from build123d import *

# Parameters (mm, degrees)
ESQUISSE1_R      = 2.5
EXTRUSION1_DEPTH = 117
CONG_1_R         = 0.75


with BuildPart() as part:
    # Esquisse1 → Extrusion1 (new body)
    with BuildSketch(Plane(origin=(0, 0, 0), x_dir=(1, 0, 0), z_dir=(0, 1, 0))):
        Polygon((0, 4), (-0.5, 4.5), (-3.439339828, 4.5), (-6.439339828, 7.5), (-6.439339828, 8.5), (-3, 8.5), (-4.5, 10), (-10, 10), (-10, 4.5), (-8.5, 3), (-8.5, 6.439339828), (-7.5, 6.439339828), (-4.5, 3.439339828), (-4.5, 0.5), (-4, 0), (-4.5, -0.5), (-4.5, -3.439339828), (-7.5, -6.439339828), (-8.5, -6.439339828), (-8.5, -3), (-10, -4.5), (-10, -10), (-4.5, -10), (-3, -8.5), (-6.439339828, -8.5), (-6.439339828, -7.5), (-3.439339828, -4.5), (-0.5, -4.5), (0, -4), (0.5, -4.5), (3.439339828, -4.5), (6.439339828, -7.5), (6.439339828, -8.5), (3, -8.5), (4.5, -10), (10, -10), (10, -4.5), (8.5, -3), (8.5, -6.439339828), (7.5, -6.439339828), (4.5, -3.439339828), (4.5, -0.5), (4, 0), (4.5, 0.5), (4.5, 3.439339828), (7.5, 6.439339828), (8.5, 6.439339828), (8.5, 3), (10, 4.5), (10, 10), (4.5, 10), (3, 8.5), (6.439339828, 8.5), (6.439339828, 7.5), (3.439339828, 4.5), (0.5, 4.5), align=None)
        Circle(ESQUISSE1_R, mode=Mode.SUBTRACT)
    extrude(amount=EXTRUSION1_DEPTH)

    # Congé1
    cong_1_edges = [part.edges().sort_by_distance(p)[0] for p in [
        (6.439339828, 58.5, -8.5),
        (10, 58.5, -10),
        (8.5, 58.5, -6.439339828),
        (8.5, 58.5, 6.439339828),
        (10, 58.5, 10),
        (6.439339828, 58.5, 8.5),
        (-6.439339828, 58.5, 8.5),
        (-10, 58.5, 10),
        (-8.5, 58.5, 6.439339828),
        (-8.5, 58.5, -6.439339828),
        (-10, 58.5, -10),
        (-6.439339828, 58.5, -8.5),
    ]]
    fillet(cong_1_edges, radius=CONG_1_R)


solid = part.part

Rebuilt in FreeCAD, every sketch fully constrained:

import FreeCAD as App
import Part
import Sketcher


def edges_at(feature, points):
    """Names of the edges that pass closest to the given points."""
    edges = feature.Shape.Edges
    near = lambda p: min(range(len(edges)), key=lambda i: edges[i].distToShape(Part.Vertex(*p))[0])
    return sorted({f"Edge{near(p) + 1}" for p in points})

doc = App.newDocument("Part")
body = doc.addObject("PartDesign::Body", "Body")

# Sketch on XZ plane
sketch1 = body.newObject("Sketcher::SketchObject", "Sketch")
sketch1.AttachmentSupport = (doc.getObject("XZ_Plane"), [""])
sketch1.MapMode = "FlatFace"
sketch1.addGeometry([
    Part.LineSegment(App.Vector(0, -4, 0), App.Vector(-0.5, -4.5, 0)),  # 0
    Part.LineSegment(App.Vector(-0.5, -4.5, 0), App.Vector(-3.4, -4.5, 0)),  # 1
    Part.LineSegment(App.Vector(-3.4, -4.5, 0), App.Vector(-6.4, -7.5, 0)),  # 2
    Part.LineSegment(App.Vector(-6.4, -7.5, 0), App.Vector(-6.4, -8.5, 0)),  # 3
    Part.LineSegment(App.Vector(-6.4, -8.5, 0), App.Vector(-3, -8.5, 0)),  # 4
    Part.LineSegment(App.Vector(-3, -8.5, 0), App.Vector(-4.5, -10, 0)),  # 5
    Part.LineSegment(App.Vector(-4.5, -10, 0), App.Vector(-10, -10, 0)),  # 6
    Part.LineSegment(App.Vector(-10, -10, 0), App.Vector(-10, -4.5, 0)),  # 7
    Part.LineSegment(App.Vector(-10, -4.5, 0), App.Vector(-8.5, -3, 0)),  # 8
    Part.LineSegment(App.Vector(-8.5, -3, 0), App.Vector(-8.5, -6.4, 0)),  # 9
    Part.LineSegment(App.Vector(-8.5, -6.4, 0), App.Vector(-7.5, -6.4, 0)),  # 10
    Part.LineSegment(App.Vector(-7.5, -6.4, 0), App.Vector(-4.5, -3.4, 0)),  # 11
    Part.LineSegment(App.Vector(-4.5, -3.4, 0), App.Vector(-4.5, -0.5, 0)),  # 12
    Part.LineSegment(App.Vector(-4.5, -0.5, 0), App.Vector(-4, 0, 0)),  # 13
    Part.LineSegment(App.Vector(-4, 0, 0), App.Vector(-4.5, 0.5, 0)),  # 14
    Part.LineSegment(App.Vector(-4.5, 0.5, 0), App.Vector(-4.5, 3.4, 0)),  # 15
    Part.LineSegment(App.Vector(-4.5, 3.4, 0), App.Vector(-7.5, 6.4, 0)),  # 16
    Part.LineSegment(App.Vector(-7.5, 6.4, 0), App.Vector(-8.5, 6.4, 0)),  # 17
    Part.LineSegment(App.Vector(-8.5, 6.4, 0), App.Vector(-8.5, 3, 0)),  # 18
    Part.LineSegment(App.Vector(-8.5, 3, 0), App.Vector(-10, 4.5, 0)),  # 19
    Part.LineSegment(App.Vector(-10, 4.5, 0), App.Vector(-10, 10, 0)),  # 20
    Part.LineSegment(App.Vector(-10, 10, 0), App.Vector(-4.5, 10, 0)),  # 21
    Part.LineSegment(App.Vector(-4.5, 10, 0), App.Vector(-3, 8.5, 0)),  # 22
    Part.LineSegment(App.Vector(-3, 8.5, 0), App.Vector(-6.4, 8.5, 0)),  # 23
    Part.LineSegment(App.Vector(-6.4, 8.5, 0), App.Vector(-6.4, 7.5, 0)),  # 24
    Part.LineSegment(App.Vector(-6.4, 7.5, 0), App.Vector(-3.4, 4.5, 0)),  # 25
    Part.LineSegment(App.Vector(-3.4, 4.5, 0), App.Vector(-0.5, 4.5, 0)),  # 26
    Part.LineSegment(App.Vector(-0.5, 4.5, 0), App.Vector(0, 4, 0)),  # 27
    Part.LineSegment(App.Vector(0, 4, 0), App.Vector(0.5, 4.5, 0)),  # 28
    Part.LineSegment(App.Vector(0.5, 4.5, 0), App.Vector(3.4, 4.5, 0)),  # 29
    Part.LineSegment(App.Vector(3.4, 4.5, 0), App.Vector(6.4, 7.5, 0)),  # 30
    Part.LineSegment(App.Vector(6.4, 7.5, 0), App.Vector(6.4, 8.5, 0)),  # 31
    Part.LineSegment(App.Vector(6.4, 8.5, 0), App.Vector(3, 8.5, 0)),  # 32
    Part.LineSegment(App.Vector(3, 8.5, 0), App.Vector(4.5, 10, 0)),  # 33
    Part.LineSegment(App.Vector(4.5, 10, 0), App.Vector(10, 10, 0)),  # 34
    Part.LineSegment(App.Vector(10, 10, 0), App.Vector(10, 4.5, 0)),  # 35
    Part.LineSegment(App.Vector(10, 4.5, 0), App.Vector(8.5, 3, 0)),  # 36
    Part.LineSegment(App.Vector(8.5, 3, 0), App.Vector(8.5, 6.4, 0)),  # 37
    Part.LineSegment(App.Vector(8.5, 6.4, 0), App.Vector(7.5, 6.4, 0)),  # 38
    Part.LineSegment(App.Vector(7.5, 6.4, 0), App.Vector(4.5, 3.4, 0)),  # 39
    Part.LineSegment(App.Vector(4.5, 3.4, 0), App.Vector(4.5, 0.5, 0)),  # 40
    Part.LineSegment(App.Vector(4.5, 0.5, 0), App.Vector(4, 0, 0)),  # 41
    Part.LineSegment(App.Vector(4, 0, 0), App.Vector(4.5, -0.5, 0)),  # 42
    Part.LineSegment(App.Vector(4.5, -0.5, 0), App.Vector(4.5, -3.4, 0)),  # 43
    Part.LineSegment(App.Vector(4.5, -3.4, 0), App.Vector(7.5, -6.4, 0)),  # 44
    Part.LineSegment(App.Vector(7.5, -6.4, 0), App.Vector(8.5, -6.4, 0)),  # 45
    Part.LineSegment(App.Vector(8.5, -6.4, 0), App.Vector(8.5, -3, 0)),  # 46
    Part.LineSegment(App.Vector(8.5, -3, 0), App.Vector(10, -4.5, 0)),  # 47
    Part.LineSegment(App.Vector(10, -4.5, 0), App.Vector(10, -10, 0)),  # 48
    Part.LineSegment(App.Vector(10, -10, 0), App.Vector(4.5, -10, 0)),  # 49
    Part.LineSegment(App.Vector(4.5, -10, 0), App.Vector(3, -8.5, 0)),  # 50
    Part.LineSegment(App.Vector(3, -8.5, 0), App.Vector(6.4, -8.5, 0)),  # 51
    Part.LineSegment(App.Vector(6.4, -8.5, 0), App.Vector(6.4, -7.5, 0)),  # 52
    Part.LineSegment(App.Vector(6.4, -7.5, 0), App.Vector(3.4, -4.5, 0)),  # 53
    Part.LineSegment(App.Vector(3.4, -4.5, 0), App.Vector(0.5, -4.5, 0)),  # 54
    Part.LineSegment(App.Vector(0.5, -4.5, 0), App.Vector(0, -4, 0)),  # 55
    Part.Circle(App.Vector(0, 0, 0), App.Vector(0, 0, 1), 2.5),  # 56
], False)
sketch1.addConstraint([
    Sketcher.Constraint("Coincident", 0, 2, 1, 1),
    Sketcher.Constraint("Coincident", 1, 2, 2, 1),
    Sketcher.Constraint("Coincident", 2, 2, 3, 1),
    Sketcher.Constraint("Coincident", 3, 2, 4, 1),
    Sketcher.Constraint("Coincident", 4, 2, 5, 1),
    Sketcher.Constraint("Coincident", 5, 2, 6, 1),
    Sketcher.Constraint("Coincident", 6, 2, 7, 1),
    Sketcher.Constraint("Coincident", 7, 2, 8, 1),
    Sketcher.Constraint("Coincident", 8, 2, 9, 1),
    Sketcher.Constraint("Coincident", 9, 2, 10, 1),
    Sketcher.Constraint("Coincident", 10, 2, 11, 1),
    Sketcher.Constraint("Coincident", 11, 2, 12, 1),
    Sketcher.Constraint("Coincident", 12, 2, 13, 1),
    Sketcher.Constraint("Coincident", 13, 2, 14, 1),
    Sketcher.Constraint("Coincident", 14, 2, 15, 1),
    Sketcher.Constraint("Coincident", 15, 2, 16, 1),
    Sketcher.Constraint("Coincident", 16, 2, 17, 1),
    Sketcher.Constraint("Coincident", 17, 2, 18, 1),
    Sketcher.Constraint("Coincident", 18, 2, 19, 1),
    Sketcher.Constraint("Coincident", 19, 2, 20, 1),
    Sketcher.Constraint("Coincident", 20, 2, 21, 1),
    Sketcher.Constraint("Coincident", 21, 2, 22, 1),
    Sketcher.Constraint("Coincident", 22, 2, 23, 1),
    Sketcher.Constraint("Coincident", 23, 2, 24, 1),
    Sketcher.Constraint("Coincident", 24, 2, 25, 1),
    Sketcher.Constraint("Coincident", 25, 2, 26, 1),
    Sketcher.Constraint("Coincident", 26, 2, 27, 1),
    Sketcher.Constraint("Coincident", 27, 2, 28, 1),
    Sketcher.Constraint("Coincident", 28, 2, 29, 1),
    Sketcher.Constraint("Coincident", 29, 2, 30, 1),
    Sketcher.Constraint("Coincident", 30, 2, 31, 1),
    Sketcher.Constraint("Coincident", 31, 2, 32, 1),
    Sketcher.Constraint("Coincident", 32, 2, 33, 1),
    Sketcher.Constraint("Coincident", 33, 2, 34, 1),
    Sketcher.Constraint("Coincident", 34, 2, 35, 1),
    Sketcher.Constraint("Coincident", 35, 2, 36, 1),
    Sketcher.Constraint("Coincident", 36, 2, 37, 1),
    Sketcher.Constraint("Coincident", 37, 2, 38, 1),
    Sketcher.Constraint("Coincident", 38, 2, 39, 1),
    Sketcher.Constraint("Coincident", 39, 2, 40, 1),
    Sketcher.Constraint("Coincident", 40, 2, 41, 1),
    Sketcher.Constraint("Coincident", 41, 2, 42, 1),
    Sketcher.Constraint("Coincident", 42, 2, 43, 1),
    Sketcher.Constraint("Coincident", 43, 2, 44, 1),
    Sketcher.Constraint("Coincident", 44, 2, 45, 1),
    Sketcher.Constraint("Coincident", 45, 2, 46, 1),
    Sketcher.Constraint("Coincident", 46, 2, 47, 1),
    Sketcher.Constraint("Coincident", 47, 2, 48, 1),
    Sketcher.Constraint("Coincident", 48, 2, 49, 1),
    Sketcher.Constraint("Coincident", 49, 2, 50, 1),
    Sketcher.Constraint("Coincident", 50, 2, 51, 1),
    Sketcher.Constraint("Coincident", 51, 2, 52, 1),
    Sketcher.Constraint("Coincident", 52, 2, 53, 1),
    Sketcher.Constraint("Coincident", 53, 2, 54, 1),
    Sketcher.Constraint("Coincident", 54, 2, 55, 1),
    Sketcher.Constraint("Coincident", 55, 2, 0, 1),
    Sketcher.Constraint("Horizontal", 1),
    Sketcher.Constraint("Vertical", 3),
    Sketcher.Constraint("Horizontal", 4),
    Sketcher.Constraint("Horizontal", 6),
    Sketcher.Constraint("Vertical", 7),
    Sketcher.Constraint("Vertical", 9),
    Sketcher.Constraint("Horizontal", 10),
    Sketcher.Constraint("Vertical", 12),
    Sketcher.Constraint("Vertical", 15),
    Sketcher.Constraint("Horizontal", 17),
    Sketcher.Constraint("Vertical", 18),
    Sketcher.Constraint("Vertical", 20),
    Sketcher.Constraint("Horizontal", 21),
    Sketcher.Constraint("Horizontal", 23),
    Sketcher.Constraint("Vertical", 24),
    Sketcher.Constraint("Horizontal", 26),
    Sketcher.Constraint("Horizontal", 29),
    Sketcher.Constraint("Vertical", 31),
    Sketcher.Constraint("Horizontal", 32),
    Sketcher.Constraint("Horizontal", 34),
    Sketcher.Constraint("Vertical", 35),
    Sketcher.Constraint("Vertical", 37),
    Sketcher.Constraint("Horizontal", 38),
    Sketcher.Constraint("Vertical", 40),
    Sketcher.Constraint("Vertical", 43),
    Sketcher.Constraint("Horizontal", 45),
    Sketcher.Constraint("Vertical", 46),
    Sketcher.Constraint("Vertical", 48),
    Sketcher.Constraint("Horizontal", 49),
    Sketcher.Constraint("Horizontal", 51),
    Sketcher.Constraint("Vertical", 52),
    Sketcher.Constraint("Horizontal", 54),
    Sketcher.Constraint("Coincident", 56, 3, -1, 1),
    Sketcher.Constraint("Symmetric", 0, 2, 28, 2, -1, 1),
    Sketcher.Constraint("Symmetric", 2, 2, 30, 2, -1, 1),
    Sketcher.Constraint("Symmetric", 4, 2, 32, 2, -1, 1),
    Sketcher.Constraint("Symmetric", 5, 2, 33, 2, -1, 1),
    Sketcher.Constraint("Symmetric", 7, 2, 35, 2, -1, 1),
    Sketcher.Constraint("Symmetric", 8, 2, 36, 2, -1, 1),
    Sketcher.Constraint("Symmetric", 10, 2, 38, 2, -1, 1),
    Sketcher.Constraint("Symmetric", 11, 2, 39, 2, -1, 1),
    Sketcher.Constraint("Symmetric", 13, 2, 41, 2, -1, 1),
    Sketcher.Constraint("Symmetric", 14, 2, 42, 2, -1, 1),
    Sketcher.Constraint("Symmetric", 16, 2, 44, 2, -1, 1),
    Sketcher.Constraint("Symmetric", 18, 2, 46, 2, -1, 1),
    Sketcher.Constraint("Symmetric", 19, 2, 47, 2, -1, 1),
    Sketcher.Constraint("Symmetric", 21, 2, 49, 2, -1, 1),
    Sketcher.Constraint("Symmetric", 22, 2, 50, 2, -1, 1),
    Sketcher.Constraint("Symmetric", 24, 2, 52, 2, -1, 1),
    Sketcher.Constraint("Symmetric", 25, 2, 53, 2, -1, 1),
    Sketcher.Constraint("Symmetric", 27, 2, 55, 2, -1, 1),
    Sketcher.Constraint("Symmetric", 26, 2, 28, 2, -2),
    Sketcher.Constraint("Symmetric", 24, 2, 30, 2, -2),
    Sketcher.Constraint("Symmetric", 22, 2, 32, 2, -2),
    Sketcher.Constraint("Symmetric", 21, 2, 33, 2, -2),
    Sketcher.Constraint("Symmetric", 19, 2, 35, 2, -2),
    Sketcher.Constraint("Symmetric", 18, 2, 36, 2, -2),
    Sketcher.Constraint("Symmetric", 16, 2, 38, 2, -2),
    Sketcher.Constraint("Symmetric", 15, 2, 39, 2, -2),
    Sketcher.Constraint("PointOnObject", 13, 2, -1),
    Sketcher.Constraint("PointOnObject", 27, 2, -2),
    Sketcher.Constraint("Parallel", 0, 2),
    Sketcher.Constraint("Parallel", 2, 5),
    Sketcher.Constraint("Parallel", 5, 8),
    Sketcher.Constraint("Parallel", 8, 11),
    Sketcher.Constraint("Parallel", 11, 13),
    Sketcher.Constraint("Perpendicular", 13, 14),
    Sketcher.Constraint("Parallel", 14, 16),
    Sketcher.Constraint("Parallel", 22, 25),
    Sketcher.Constraint("Parallel", 28, 30),
    Sketcher.Constraint("Parallel", 39, 41),
    Sketcher.Constraint("Parallel", 42, 44),
    Sketcher.Constraint("Parallel", 53, 55),
    Sketcher.Constraint("Horizontal", 1, 2, 7, 2),
    Sketcher.Constraint("Vertical", 5, 2, 11, 2),
    Sketcher.Constraint("Equal", 45, 3),
    Sketcher.Constraint("Equal", 49, 7),
    Sketcher.Constraint("Equal", 51, 9),
    Sketcher.Constraint("Equal", 54, 12),
    Sketcher.Constraint("Equal", 5, 8),
    Sketcher.Constraint("Equal", 0, 13),
    Sketcher.Constraint("Diameter", 56, 5.0),
    Sketcher.Constraint("DistanceX", 10, 1, 10, 2, 1.0),
    Sketcher.Constraint("DistanceX", 6, 2, 6, 1, 5.5),
    Sketcher.Constraint("DistanceX", 4, 2, -1, 1, 3.0),
    Sketcher.Constraint("DistanceY", 5, 2, -1, 1, 10.0),
    Sketcher.Constraint("DistanceX", 13, 2, -1, 1, 4.0),
    Sketcher.Constraint("DistanceX", 1, 2, 1, 1, 2.93934),
])
pad1 = body.newObject("PartDesign::Pad", "Pad")
pad1.Profile = sketch1
pad1.Length = 117
pad1.Reversed = True
doc.recompute()

fillet = body.newObject("PartDesign::Fillet", "Fillet")
fillet.Base = (pad1, edges_at(pad1, [
    (6.439, 58.5, -8.5),
    (10, 58.5, -10),
    (8.5, 58.5, -6.439),
    (8.5, 58.5, 6.439),
    (10, 58.5, 10),
    (6.439, 58.5, 8.5),
    (-6.439, 58.5, 8.5),
    (-10, 58.5, 10),
    (-8.5, 58.5, 6.439),
    (-8.5, 58.5, -6.439),
    (-10, 58.5, -10),
    (-6.439, 58.5, -8.5),
]))
fillet.Radius = 0.75

doc.recompute()
